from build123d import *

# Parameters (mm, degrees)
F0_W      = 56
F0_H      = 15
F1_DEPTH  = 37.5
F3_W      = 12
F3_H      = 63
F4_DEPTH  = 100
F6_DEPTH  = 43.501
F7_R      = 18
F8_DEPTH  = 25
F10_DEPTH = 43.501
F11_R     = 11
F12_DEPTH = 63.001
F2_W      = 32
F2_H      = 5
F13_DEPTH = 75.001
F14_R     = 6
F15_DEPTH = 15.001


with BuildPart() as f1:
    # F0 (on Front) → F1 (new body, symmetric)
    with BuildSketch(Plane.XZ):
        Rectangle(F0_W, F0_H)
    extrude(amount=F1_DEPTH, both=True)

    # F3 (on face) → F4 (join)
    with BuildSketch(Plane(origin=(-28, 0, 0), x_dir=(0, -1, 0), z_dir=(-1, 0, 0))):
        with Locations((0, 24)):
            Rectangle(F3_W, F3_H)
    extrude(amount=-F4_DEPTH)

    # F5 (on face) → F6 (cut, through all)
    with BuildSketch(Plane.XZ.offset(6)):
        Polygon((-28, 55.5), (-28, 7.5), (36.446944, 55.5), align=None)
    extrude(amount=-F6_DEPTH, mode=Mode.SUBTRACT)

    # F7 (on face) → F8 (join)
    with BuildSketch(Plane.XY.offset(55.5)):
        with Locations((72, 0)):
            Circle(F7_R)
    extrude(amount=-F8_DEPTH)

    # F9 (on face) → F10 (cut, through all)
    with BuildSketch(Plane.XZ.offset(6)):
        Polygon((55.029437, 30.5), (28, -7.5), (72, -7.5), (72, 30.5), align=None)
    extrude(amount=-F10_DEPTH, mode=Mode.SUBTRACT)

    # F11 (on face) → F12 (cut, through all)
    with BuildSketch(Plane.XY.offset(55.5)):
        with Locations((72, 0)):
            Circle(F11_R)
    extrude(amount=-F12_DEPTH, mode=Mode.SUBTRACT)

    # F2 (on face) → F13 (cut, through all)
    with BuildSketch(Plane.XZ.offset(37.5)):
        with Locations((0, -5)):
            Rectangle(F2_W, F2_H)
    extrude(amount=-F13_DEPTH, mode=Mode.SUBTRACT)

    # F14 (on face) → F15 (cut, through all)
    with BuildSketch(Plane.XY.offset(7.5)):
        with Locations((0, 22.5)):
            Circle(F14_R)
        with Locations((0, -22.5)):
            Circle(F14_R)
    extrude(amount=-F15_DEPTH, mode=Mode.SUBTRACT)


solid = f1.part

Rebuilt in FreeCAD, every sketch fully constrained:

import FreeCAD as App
import Part
import Sketcher
from FreeCAD import Vector

doc = App.newDocument("Part")
body = doc.addObject("PartDesign::Body", "Body")

# Sketch on XZ plane
sketch1 = body.newObject("Sketcher::SketchObject", "Sketch")
sketch1.AttachmentSupport = (doc.getObject("XZ_Plane"), [""])
sketch1.MapMode = "FlatFace"
sketch1.addGeometry(Part.LineSegment(Vector(-28, 8, 0), Vector(-28, -8, 0)), False)
sketch1.addGeometry(Part.LineSegment(Vector(-28, -8, 0), Vector(28, -8, 0)), False)
sketch1.addGeometry(Part.LineSegment(Vector(28, -8, 0), Vector(28, 8, 0)), False)
sketch1.addGeometry(Part.LineSegment(Vector(28, 8, 0), Vector(-28, 8, 0)), False)
sketch1.addConstraint(Sketcher.Constraint("Coincident", 0, 2, 1, 1))
sketch1.addConstraint(Sketcher.Constraint("Coincident", 1, 2, 2, 1))
sketch1.addConstraint(Sketcher.Constraint("Coincident", 2, 2, 3, 1))
sketch1.addConstraint(Sketcher.Constraint("Coincident", 3, 2, 0, 1))
sketch1.addConstraint(Sketcher.Constraint("Vertical", 0))
sketch1.addConstraint(Sketcher.Constraint("Horizontal", 1))
sketch1.addConstraint(Sketcher.Constraint("Vertical", 2))
sketch1.addConstraint(Sketcher.Constraint("Horizontal", 3))
sketch1.addConstraint(Sketcher.Constraint("Symmetric", 0, 2, 2, 2, -1, 1))
sketch1.addConstraint(Sketcher.Constraint("DistanceX", 1, 1, 1, 2, 56.0))
sketch1.addConstraint(Sketcher.Constraint("DistanceY", 0, 2, 0, 1, 15.0))
pad1 = body.newObject("PartDesign::Pad", "Pad")
pad1.Profile = sketch1
pad1.Length = 75
pad1.Midplane = True

# Sketch on YZ plane
sketch2 = body.newObject("Sketcher::SketchObject", "Sketch001")
sketch2.AttachmentSupport = (doc.getObject("YZ_Plane"), [""])
sketch2.MapMode = "FlatFace"
sketch2.AttachmentOffset = App.Placement(Vector(0, 0, -28), App.Rotation())
sketch2.addGeometry(Part.LineSegment(Vector(6, 56, 0), Vector(6, -8, 0)), False)
sketch2.addGeometry(Part.LineSegment(Vector(6, -8, 0), Vector(-6, -8, 0)), False)
sketch2.addGeometry(Part.LineSegment(Vector(-6, -8, 0), Vector(-6, 56, 0)), False)
sketch2.addGeometry(Part.LineSegment(Vector(-6, 56, 0), Vector(6, 56, 0)), False)
sketch2.addConstraint(Sketcher.Constraint("Coincident", 0, 2, 1, 1))
sketch2.addConstraint(Sketcher.Constraint("Coincident", 1, 2, 2, 1))
sketch2.addConstraint(Sketcher.Constraint("Coincident", 2, 2, 3, 1))
sketch2.addConstraint(Sketcher.Constraint("Coincident", 3, 2, 0, 1))
sketch2.addConstraint(Sketcher.Constraint("Vertical", 0))
sketch2.addConstraint(Sketcher.Constraint("Horizontal", 1))
sketch2.addConstraint(Sketcher.Constraint("Vertical", 2))
sketch2.addConstraint(Sketcher.Constraint("Horizontal", 3))
sketch2.addConstraint(Sketcher.Constraint("DistanceX", 1, 2, 1, 1, 12.0))
sketch2.addConstraint(Sketcher.Constraint("DistanceY", 0, 2, 0, 1, 63.0))
sketch2.addConstraint(Sketcher.Constraint("DistanceX", -1, 1, 0, 2, 6.0))
sketch2.addConstraint(Sketcher.Constraint("DistanceY", 0, 2, -1, 1, 7.5))
pad2 = body.newObject("PartDesign::Pad", "Pad001")
pad2.Profile = sketch2
pad2.Length = 100

# Sketch on XZ plane
sketch3 = body.newObject("Sketcher::SketchObject", "Sketch002")
sketch3.AttachmentSupport = (doc.getObject("XZ_Plane"), [""])
sketch3.MapMode = "FlatFace"
sketch3.AttachmentOffset = App.Placement(Vector(0, 0, 6), App.Rotation())
sketch3.addGeometry(Part.LineSegment(Vector(-28, 56, 0), Vector(-28, 8, 0)), False)
sketch3.addGeometry(Part.LineSegment(Vector(-28, 8, 0), Vector(36, 56, 0)), False)
sketch3.addGeometry(Part.LineSegment(Vector(36, 56, 0), Vector(-28, 56, 0)), False)
sketch3.addConstraint(Sketcher.Constraint("Coincident", 0, 2, 1, 1))
sketch3.addConstraint(Sketcher.Constraint("Coincident", 1, 2, 2, 1))
sketch3.addConstraint(Sketcher.Constraint("Coincident", 2, 2, 0, 1))
sketch3.addConstraint(Sketcher.Constraint("Vertical", 0))
sketch3.addConstraint(Sketcher.Constraint("Horizontal", 2))
sketch3.addConstraint(Sketcher.Constraint("DistanceY", 0, 2, 0, 1, 48.0))
sketch3.addConstraint(Sketcher.Constraint("DistanceX", 0, 2, -1, 1, 28.0))
sketch3.addConstraint(Sketcher.Constraint("DistanceY", -1, 1, 0, 2, 7.5))
sketch3.addConstraint(Sketcher.Constraint("DistanceX", 2, 2, 2, 1, 64.446944))
pocket1 = body.newObject("PartDesign::Pocket", "Pocket")
pocket1.Profile = sketch3
pocket1.Type = "ThroughAll"

# Sketch on XY plane
sketch4 = body.newObject("Sketcher::SketchObject", "Sketch003")
sketch4.AttachmentSupport = (doc.getObject("XY_Plane"), [""])
sketch4.MapMode = "FlatFace"
sketch4.AttachmentOffset = App.Placement(Vector(0, 0, 55.5), App.Rotation())
sketch4.addGeometry(Part.Circle(Vector(72, 0, 0), Vector(0, 0, 1), 18), False)
sketch4.addConstraint(Sketcher.Constraint("PointOnObject", 0, 3, -1))
sketch4.addConstraint(Sketcher.Constraint("Diameter", 0, 36.0))
sketch4.addConstraint(Sketcher.Constraint("DistanceX", -1, 1, 0, 3, 72.0))
pad3 = body.newObject("PartDesign::Pad", "Pad002")
pad3.Profile = sketch4
pad3.Length = 25
pad3.Reversed = True

# Sketch on XZ plane
sketch5 = body.newObject("Sketcher::SketchObject", "Sketch004")
sketch5.AttachmentSupport = (doc.getObject("XZ_Plane"), [""])
sketch5.MapMode = "FlatFace"
sketch5.AttachmentOffset = App.Placement(Vector(0, 0, 6), App.Rotation())
sketch5.addGeometry(Part.LineSegment(Vector(55, 30, 0), Vector(28, -8, 0)), False)
sketch5.addGeometry(Part.LineSegment(Vector(28, -8, 0), Vector(72, -8, 0)), False)
sketch5.addGeometry(Part.LineSegment(Vector(72, -8, 0), Vector(72, 30, 0)), False)
sketch5.addGeometry(Part.LineSegment(Vector(72, 30, 0), Vector(55, 30, 0)), False)
sketch5.addConstraint(Sketcher.Constraint("Coincident", 0, 2, 1, 1))
sketch5.addConstraint(Sketcher.Constraint("Coincident", 1, 2, 2, 1))
sketch5.addConstraint(Sketcher.Constraint("Coincident", 2, 2, 3, 1))
sketch5.addConstraint(Sketcher.Constraint("Coincident", 3, 2, 0, 1))
sketch5.addConstraint(Sketcher.Constraint("Horizontal", 1))
sketch5.addConstraint(Sketcher.Constraint("Vertical", 2))
sketch5.addConstraint(Sketcher.Constraint("Horizontal", 3))
sketch5.addConstraint(Sketcher.Constraint("DistanceX", 1, 1, 1, 2, 44.0))
sketch5.addConstraint(Sketcher.Constraint("DistanceY", 2, 1, 2, 2, 38.0))
sketch5.addConstraint(Sketcher.Constraint("DistanceX", -1, 1, 0, 2, 28.0))
sketch5.addConstraint(Sketcher.Constraint("DistanceY", 0, 2, -1, 1, 7.5))
sketch5.addConstraint(Sketcher.Constraint("DistanceX", 3, 2, 3, 1, 16.970563))
pocket2 = body.newObject("PartDesign::Pocket", "Pocket001")
pocket2.Profile = sketch5
pocket2.Type = "ThroughAll"

# Sketch on XY plane
sketch6 = body.newObject("Sketcher::SketchObject", "Sketch005")
sketch6.AttachmentSupport = (doc.getObject("XY_Plane"), [""])
sketch6.MapMode = "FlatFace"
sketch6.AttachmentOffset = App.Placement(Vector(0, 0, 55.5), App.Rotation())
sketch6.addGeometry(Part.Circle(Vector(72, 0, 0), Vector(0, 0, 1), 11), False)
sketch6.addConstraint(Sketcher.Constraint("PointOnObject", 0, 3, -1))
sketch6.addConstraint(Sketcher.Constraint("Diameter", 0, 22.0))
sketch6.addConstraint(Sketcher.Constraint("DistanceX", -1, 1, 0, 3, 72.0))
pocket3 = body.newObject("PartDesign::Pocket", "Pocket002")
pocket3.Profile = sketch6
pocket3.Type = "ThroughAll"

# Sketch on XZ plane
sketch7 = body.newObject("Sketcher::SketchObject", "Sketch006")
sketch7.AttachmentSupport = (doc.getObject("XZ_Plane"), [""])
sketch7.MapMode = "FlatFace"
sketch7.AttachmentOffset = App.Placement(Vector(0, 0, 37.5), App.Rotation())
sketch7.addGeometry(Part.LineSegment(Vector(-16, -2, 0), Vector(-16, -8, 0)), False)
sketch7.addGeometry(Part.LineSegment(Vector(-16, -8, 0), Vector(16, -8, 0)), False)
sketch7.addGeometry(Part.LineSegment(Vector(16, -8, 0), Vector(16, -2, 0)), False)
sketch7.addGeometry(Part.LineSegment(Vector(16, -2, 0), Vector(-16, -2, 0)), False)
sketch7.addConstraint(Sketcher.Constraint("Coincident", 0, 2, 1, 1))
sketch7.addConstraint(Sketcher.Constraint("Coincident", 1, 2, 2, 1))
sketch7.addConstraint(Sketcher.Constraint("Coincident", 2, 2, 3, 1))
sketch7.addConstraint(Sketcher.Constraint("Coincident", 3, 2, 0, 1))
sketch7.addConstraint(Sketcher.Constraint("Vertical", 0))
sketch7.addConstraint(Sketcher.Constraint("Horizontal", 1))
sketch7.addConstraint(Sketcher.Constraint("Vertical", 2))
sketch7.addConstraint(Sketcher.Constraint("Horizontal", 3))
sketch7.addConstraint(Sketcher.Constraint("DistanceX", 1, 1, 1, 2, 32.0))
sketch7.addConstraint(Sketcher.Constraint("DistanceY", 0, 2, 0, 1, 5.0))
sketch7.addConstraint(Sketcher.Constraint("DistanceX", 0, 2, -1, 1, 16.0))
sketch7.addConstraint(Sketcher.Constraint("DistanceY", 0, 2, -1, 1, 7.5))
pocket4 = body.newObject("PartDesign::Pocket", "Pocket003")
pocket4.Profile = sketch7
pocket4.Type = "ThroughAll"

# Sketch on XY plane
sketch8 = body.newObject("Sketcher::SketchObject", "Sketch007")
sketch8.AttachmentSupport = (doc.getObject("XY_Plane"), [""])
sketch8.MapMode = "FlatFace"
sketch8.AttachmentOffset = App.Placement(Vector(0, 0, 7.5), App.Rotation())
sketch8.addGeometry(Part.Circle(Vector(0, 22, 0), Vector(0, 0, 1), 6), False)
sketch8.addGeometry(Part.Circle(Vector(0, -22, 0), Vector(0, 0, 1), 6), False)
sketch8.addConstraint(Sketcher.Constraint("Equal", 0, 1))
sketch8.addConstraint(Sketcher.Constraint("Symmetric", 0, 3, 1, 3, -1, 1))
sketch8.addConstraint(Sketcher.Constraint("PointOnObject", 0, 3, -2))
sketch8.addConstraint(Sketcher.Constraint("Diameter", 0, 12.0))
sketch8.addConstraint(Sketcher.Constraint("DistanceY", 1, 3, 0, 3, 45.0))
pocket5 = body.newObject("PartDesign::Pocket", "Pocket004")
pocket5.Profile = sketch8
pocket5.Type = "ThroughAll"

doc.recompute()
